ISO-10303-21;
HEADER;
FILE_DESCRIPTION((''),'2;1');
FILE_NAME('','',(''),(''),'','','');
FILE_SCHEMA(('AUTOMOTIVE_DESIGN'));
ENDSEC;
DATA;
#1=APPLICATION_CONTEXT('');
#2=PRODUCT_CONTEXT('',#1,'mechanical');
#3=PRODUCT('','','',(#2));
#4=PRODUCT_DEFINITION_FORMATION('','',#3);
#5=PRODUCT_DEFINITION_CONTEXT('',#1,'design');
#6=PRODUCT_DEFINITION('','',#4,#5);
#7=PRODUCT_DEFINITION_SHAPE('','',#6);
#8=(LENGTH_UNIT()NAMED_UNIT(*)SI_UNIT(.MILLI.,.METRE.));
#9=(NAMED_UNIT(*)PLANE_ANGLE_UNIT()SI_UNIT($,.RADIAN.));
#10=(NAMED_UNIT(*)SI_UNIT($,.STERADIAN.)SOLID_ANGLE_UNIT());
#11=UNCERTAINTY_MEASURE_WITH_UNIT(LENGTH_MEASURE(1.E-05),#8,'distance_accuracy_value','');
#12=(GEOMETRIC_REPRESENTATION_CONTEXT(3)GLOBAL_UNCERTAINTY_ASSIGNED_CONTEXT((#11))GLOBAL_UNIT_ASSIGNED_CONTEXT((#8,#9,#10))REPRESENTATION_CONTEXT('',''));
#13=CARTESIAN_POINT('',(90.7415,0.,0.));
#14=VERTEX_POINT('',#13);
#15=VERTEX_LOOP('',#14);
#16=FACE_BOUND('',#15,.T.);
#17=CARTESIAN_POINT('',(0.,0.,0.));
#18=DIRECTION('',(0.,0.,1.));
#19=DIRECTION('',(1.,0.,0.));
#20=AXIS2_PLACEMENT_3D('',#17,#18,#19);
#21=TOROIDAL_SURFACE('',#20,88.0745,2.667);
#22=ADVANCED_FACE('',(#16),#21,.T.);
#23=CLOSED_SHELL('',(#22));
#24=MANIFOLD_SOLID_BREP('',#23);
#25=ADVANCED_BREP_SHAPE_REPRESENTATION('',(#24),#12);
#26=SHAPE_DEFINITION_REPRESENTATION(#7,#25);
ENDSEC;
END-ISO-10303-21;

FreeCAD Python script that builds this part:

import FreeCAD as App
import Part
import Sketcher
from FreeCAD import Vector
Q = App.Units.Quantity

doc = App.newDocument("Part")
params = doc.addObject("Spreadsheet::Sheet", "Params")
for row, (alias, value) in enumerate([
    ("sketch1_diameter", "0.21 in"),
    ("revolution_angle", "360 deg"),
], start=1):
    params.set(f"A{row}", alias)
    params.set(f"B{row}", "=" + value)
    params.setAlias(f"B{row}", alias)

body = doc.addObject("PartDesign::Body", "Body")

sketch1 = body.newObject("Sketcher::SketchObject", "Sketch")
sketch1.AttachmentSupport = (doc.getObject("YZ_Plane"), [""])
sketch1.MapMode = "FlatFace"
sketch1.addGeometry(Part.Circle(Vector(-88.1, 0, 0), Vector(0, 0, 1), 2.7), False)
sketch1.addConstraint([
    Sketcher.Constraint("PointOnObject", 0, 3, -1),
    Sketcher.Constraint("Diameter", 0, Q("0.21 in")),
    Sketcher.Constraint("DistanceX", 0, 3, -1, 1, Q("3.4675 in")),
])
sketch1.setExpression("Constraints[1]", "Params.sketch1_diameter")
revolution = body.newObject("PartDesign::Revolution", "Revolution")
revolution.Profile = sketch1
revolution.ReferenceAxis = (sketch1, ["V_Axis"])
revolution.setExpression("Angle", "Params.revolution_angle")

doc.recompute()
